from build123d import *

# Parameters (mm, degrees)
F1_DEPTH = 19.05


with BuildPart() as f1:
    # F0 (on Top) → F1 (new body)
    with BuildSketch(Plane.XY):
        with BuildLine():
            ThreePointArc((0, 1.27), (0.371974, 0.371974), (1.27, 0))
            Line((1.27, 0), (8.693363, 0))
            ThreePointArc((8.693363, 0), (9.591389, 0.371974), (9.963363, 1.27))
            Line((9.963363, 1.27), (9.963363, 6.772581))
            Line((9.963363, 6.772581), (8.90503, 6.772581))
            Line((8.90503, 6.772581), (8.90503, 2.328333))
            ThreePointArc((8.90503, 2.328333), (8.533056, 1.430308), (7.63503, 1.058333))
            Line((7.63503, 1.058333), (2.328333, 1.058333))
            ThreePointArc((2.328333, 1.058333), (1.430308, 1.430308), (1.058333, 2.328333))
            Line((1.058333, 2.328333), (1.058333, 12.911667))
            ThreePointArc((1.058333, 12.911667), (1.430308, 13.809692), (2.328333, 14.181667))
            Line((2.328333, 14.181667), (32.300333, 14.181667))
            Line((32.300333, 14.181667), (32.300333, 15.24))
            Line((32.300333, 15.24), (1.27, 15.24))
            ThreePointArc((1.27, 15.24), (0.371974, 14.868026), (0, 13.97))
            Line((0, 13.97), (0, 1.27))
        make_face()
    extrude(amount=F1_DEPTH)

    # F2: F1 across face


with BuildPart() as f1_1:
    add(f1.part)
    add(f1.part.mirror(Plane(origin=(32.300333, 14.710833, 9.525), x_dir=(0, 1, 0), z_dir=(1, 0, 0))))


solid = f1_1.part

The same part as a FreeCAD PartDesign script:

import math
import FreeCAD as App
import Part
import Sketcher
from FreeCAD import Vector
Q = App.Units.Quantity

doc = App.newDocument("Part")
body = doc.addObject("PartDesign::Body", "Body")

# Sketch on XY plane
sketch1 = body.newObject("Sketcher::SketchObject", "Sketch")
sketch1.AttachmentSupport = (doc.getObject("XY_Plane"), [""])
sketch1.MapMode = "FlatFace"
sketch1.addGeometry(Part.ArcOfCircle(Part.Circle(Vector(1.3, 1.3, 0), Vector(0, 0, 1), 1.3), math.radians(180), math.radians(270)), False)
sketch1.addGeometry(Part.LineSegment(Vector(1.3, 0, 0), Vector(8.7, 0, 0)), False)
sketch1.addGeometry(Part.ArcOfCircle(Part.Circle(Vector(8.7, 1.3, 0), Vector(0, 0, 1), 1.3), math.radians(-90), math.radians(0)), False)
sketch1.addGeometry(Part.LineSegment(Vector(10, 1.3, 0), Vector(10, 6.8, 0)), False)
sketch1.addGeometry(Part.LineSegment(Vector(10, 6.8, 0), Vector(8.9, 6.8, 0)), False)
sketch1.addGeometry(Part.LineSegment(Vector(8.9, 6.8, 0), Vector(8.9, 2.3, 0)), False)
sketch1.addGeometry(Part.ArcOfCircle(Part.Circle(Vector(7.6, 2.3, 0), Vector(0, 0, 1), 1.3), math.radians(-90), math.radians(0)), False)
sketch1.addGeometry(Part.LineSegment(Vector(7.6, 1.1, 0), Vector(2.3, 1.1, 0)), False)
sketch1.addGeometry(Part.ArcOfCircle(Part.Circle(Vector(2.3, 2.3, 0), Vector(0, 0, 1), 1.3), math.radians(-180), math.radians(-90)), False)
sketch1.addGeometry(Part.LineSegment(Vector(1.1, 2.3, 0), Vector(1.1, 12.9, 0)), False)
sketch1.addGeometry(Part.ArcOfCircle(Part.Circle(Vector(2.3, 12.9, 0), Vector(0, 0, 1), 1.3), math.radians(90), math.radians(180)), False)
sketch1.addGeometry(Part.LineSegment(Vector(2.3, 14.2, 0), Vector(32.3, 14.2, 0)), False)
sketch1.addGeometry(Part.LineSegment(Vector(32.3, 14.2, 0), Vector(32.3, 15.2, 0)), False)
sketch1.addGeometry(Part.LineSegment(Vector(32.3, 15.2, 0), Vector(1.3, 15.2, 0)), False)
sketch1.addGeometry(Part.ArcOfCircle(Part.Circle(Vector(1.3, 14, 0), Vector(0, 0, 1), 1.3), math.radians(90), math.radians(180)), False)
sketch1.addGeometry(Part.LineSegment(Vector(0, 14, 0), Vector(0, 1.3, 0)), False)
sketch1.addConstraint(Sketcher.Constraint("Tangent", 0, 2, 1, 1))
sketch1.addConstraint(Sketcher.Constraint("Tangent", 1, 2, 2, 1))
sketch1.addConstraint(Sketcher.Constraint("Tangent", 2, 2, 3, 1))
sketch1.addConstraint(Sketcher.Constraint("Coincident", 3, 2, 4, 1))
sketch1.addConstraint(Sketcher.Constraint("Coincident", 4, 2, 5, 1))
sketch1.addConstraint(Sketcher.Constraint("Tangent", 5, 2, 6, 2))
sketch1.addConstraint(Sketcher.Constraint("Tangent", 6, 1, 7, 1))
sketch1.addConstraint(Sketcher.Constraint("Tangent", 7, 2, 8, 2))
sketch1.addConstraint(Sketcher.Constraint("Tangent", 8, 1, 9, 1))
sketch1.addConstraint(Sketcher.Constraint("Tangent", 9, 2, 10, 2))
sketch1.addConstraint(Sketcher.Constraint("Tangent", 10, 1, 11, 1))
sketch1.addConstraint(Sketcher.Constraint("Coincident", 11, 2, 12, 1))
sketch1.addConstraint(Sketcher.Constraint("Coincident", 12, 2, 13, 1))
sketch1.addConstraint(Sketcher.Constraint("Tangent", 13, 2, 14, 1))
sketch1.addConstraint(Sketcher.Constraint("Tangent", 14, 2, 15, 1))
sketch1.addConstraint(Sketcher.Constraint("Tangent", 15, 2, 0, 1))
sketch1.addConstraint(Sketcher.Constraint("Horizontal", 1))
sketch1.addConstraint(Sketcher.Constraint("Vertical", 3))
sketch1.addConstraint(Sketcher.Constraint("Horizontal", 4))
sketch1.addConstraint(Sketcher.Constraint("Vertical", 5))
sketch1.addConstraint(Sketcher.Constraint("Horizontal", 7))
sketch1.addConstraint(Sketcher.Constraint("Vertical", 9))
sketch1.addConstraint(Sketcher.Constraint("Horizontal", 11))
sketch1.addConstraint(Sketcher.Constraint("Vertical", 12))
sketch1.addConstraint(Sketcher.Constraint("Horizontal", 13))
sketch1.addConstraint(Sketcher.Constraint("Vertical", 15))
sketch1.addConstraint(Sketcher.Constraint("Equal", 0, 2))
sketch1.addConstraint(Sketcher.Constraint("Equal", 2, 6))
sketch1.addConstraint(Sketcher.Constraint("Equal", 6, 8))
sketch1.addConstraint(Sketcher.Constraint("Equal", 8, 10))
sketch1.addConstraint(Sketcher.Constraint("Equal", 6, 14))
sketch1.addConstraint(Sketcher.Constraint("PointOnObject", 0, 2, -1))
sketch1.addConstraint(Sketcher.Constraint("PointOnObject", 14, 2, -2))
sketch1.addConstraint(Sketcher.Constraint("Equal", 4, 12))
sketch1.addConstraint(Sketcher.Constraint("Radius", 0, Q("0.0499999 in")))
sketch1.addConstraint(Sketcher.Constraint("DistanceY", 15, 2, 15, 1, Q("0.5 in")))
sketch1.addConstraint(Sketcher.Constraint("DistanceX", 11, 1, 11, 2, Q("1.18 in")))
sketch1.addConstraint(Sketcher.Constraint("DistanceY", 3, 1, 3, 2, Q("5.502581 mm")))
sketch1.addConstraint(Sketcher.Constraint("DistanceX", 1, 1, 1, 2, Q("7.423363 mm")))
sketch1.addConstraint(Sketcher.Constraint("DistanceX", 4, 2, 4, 1, Q("1.058333 mm")))
sketch1.addConstraint(Sketcher.Constraint("DistanceX", 7, 2, 7, 1, Q("5.306697 mm")))
sketch1.addConstraint(Sketcher.Constraint("DistanceY", 5, 2, 5, 1, Q("4.444248 mm")))
pad1 = body.newObject("PartDesign::Pad", "Pad")
pad1.Profile = sketch1
pad1.Length = Q("0.75 in")
body2 = doc.addObject("PartDesign::Body", "Body001")
doc.recompute()

body2.BaseFeature = body
doc.recompute()

mirroring = doc.addObject("Part::Mirroring", "Mirroring")
mirroring.Source = body
mirroring.Base = Vector(32.300333, 14.710833, 9.525)
mirroring.Normal = Vector(1, 0, 0)
body3 = doc.addObject("PartDesign::Body", "Body002")
body3.BaseFeature = mirroring
boolean = body2.newObject("PartDesign::Boolean", "Boolean")
boolean.Type = "Fuse"
boolean.addObjects([body3])
doc.recompute()
mirroring.Visibility = False

doc.recompute()
